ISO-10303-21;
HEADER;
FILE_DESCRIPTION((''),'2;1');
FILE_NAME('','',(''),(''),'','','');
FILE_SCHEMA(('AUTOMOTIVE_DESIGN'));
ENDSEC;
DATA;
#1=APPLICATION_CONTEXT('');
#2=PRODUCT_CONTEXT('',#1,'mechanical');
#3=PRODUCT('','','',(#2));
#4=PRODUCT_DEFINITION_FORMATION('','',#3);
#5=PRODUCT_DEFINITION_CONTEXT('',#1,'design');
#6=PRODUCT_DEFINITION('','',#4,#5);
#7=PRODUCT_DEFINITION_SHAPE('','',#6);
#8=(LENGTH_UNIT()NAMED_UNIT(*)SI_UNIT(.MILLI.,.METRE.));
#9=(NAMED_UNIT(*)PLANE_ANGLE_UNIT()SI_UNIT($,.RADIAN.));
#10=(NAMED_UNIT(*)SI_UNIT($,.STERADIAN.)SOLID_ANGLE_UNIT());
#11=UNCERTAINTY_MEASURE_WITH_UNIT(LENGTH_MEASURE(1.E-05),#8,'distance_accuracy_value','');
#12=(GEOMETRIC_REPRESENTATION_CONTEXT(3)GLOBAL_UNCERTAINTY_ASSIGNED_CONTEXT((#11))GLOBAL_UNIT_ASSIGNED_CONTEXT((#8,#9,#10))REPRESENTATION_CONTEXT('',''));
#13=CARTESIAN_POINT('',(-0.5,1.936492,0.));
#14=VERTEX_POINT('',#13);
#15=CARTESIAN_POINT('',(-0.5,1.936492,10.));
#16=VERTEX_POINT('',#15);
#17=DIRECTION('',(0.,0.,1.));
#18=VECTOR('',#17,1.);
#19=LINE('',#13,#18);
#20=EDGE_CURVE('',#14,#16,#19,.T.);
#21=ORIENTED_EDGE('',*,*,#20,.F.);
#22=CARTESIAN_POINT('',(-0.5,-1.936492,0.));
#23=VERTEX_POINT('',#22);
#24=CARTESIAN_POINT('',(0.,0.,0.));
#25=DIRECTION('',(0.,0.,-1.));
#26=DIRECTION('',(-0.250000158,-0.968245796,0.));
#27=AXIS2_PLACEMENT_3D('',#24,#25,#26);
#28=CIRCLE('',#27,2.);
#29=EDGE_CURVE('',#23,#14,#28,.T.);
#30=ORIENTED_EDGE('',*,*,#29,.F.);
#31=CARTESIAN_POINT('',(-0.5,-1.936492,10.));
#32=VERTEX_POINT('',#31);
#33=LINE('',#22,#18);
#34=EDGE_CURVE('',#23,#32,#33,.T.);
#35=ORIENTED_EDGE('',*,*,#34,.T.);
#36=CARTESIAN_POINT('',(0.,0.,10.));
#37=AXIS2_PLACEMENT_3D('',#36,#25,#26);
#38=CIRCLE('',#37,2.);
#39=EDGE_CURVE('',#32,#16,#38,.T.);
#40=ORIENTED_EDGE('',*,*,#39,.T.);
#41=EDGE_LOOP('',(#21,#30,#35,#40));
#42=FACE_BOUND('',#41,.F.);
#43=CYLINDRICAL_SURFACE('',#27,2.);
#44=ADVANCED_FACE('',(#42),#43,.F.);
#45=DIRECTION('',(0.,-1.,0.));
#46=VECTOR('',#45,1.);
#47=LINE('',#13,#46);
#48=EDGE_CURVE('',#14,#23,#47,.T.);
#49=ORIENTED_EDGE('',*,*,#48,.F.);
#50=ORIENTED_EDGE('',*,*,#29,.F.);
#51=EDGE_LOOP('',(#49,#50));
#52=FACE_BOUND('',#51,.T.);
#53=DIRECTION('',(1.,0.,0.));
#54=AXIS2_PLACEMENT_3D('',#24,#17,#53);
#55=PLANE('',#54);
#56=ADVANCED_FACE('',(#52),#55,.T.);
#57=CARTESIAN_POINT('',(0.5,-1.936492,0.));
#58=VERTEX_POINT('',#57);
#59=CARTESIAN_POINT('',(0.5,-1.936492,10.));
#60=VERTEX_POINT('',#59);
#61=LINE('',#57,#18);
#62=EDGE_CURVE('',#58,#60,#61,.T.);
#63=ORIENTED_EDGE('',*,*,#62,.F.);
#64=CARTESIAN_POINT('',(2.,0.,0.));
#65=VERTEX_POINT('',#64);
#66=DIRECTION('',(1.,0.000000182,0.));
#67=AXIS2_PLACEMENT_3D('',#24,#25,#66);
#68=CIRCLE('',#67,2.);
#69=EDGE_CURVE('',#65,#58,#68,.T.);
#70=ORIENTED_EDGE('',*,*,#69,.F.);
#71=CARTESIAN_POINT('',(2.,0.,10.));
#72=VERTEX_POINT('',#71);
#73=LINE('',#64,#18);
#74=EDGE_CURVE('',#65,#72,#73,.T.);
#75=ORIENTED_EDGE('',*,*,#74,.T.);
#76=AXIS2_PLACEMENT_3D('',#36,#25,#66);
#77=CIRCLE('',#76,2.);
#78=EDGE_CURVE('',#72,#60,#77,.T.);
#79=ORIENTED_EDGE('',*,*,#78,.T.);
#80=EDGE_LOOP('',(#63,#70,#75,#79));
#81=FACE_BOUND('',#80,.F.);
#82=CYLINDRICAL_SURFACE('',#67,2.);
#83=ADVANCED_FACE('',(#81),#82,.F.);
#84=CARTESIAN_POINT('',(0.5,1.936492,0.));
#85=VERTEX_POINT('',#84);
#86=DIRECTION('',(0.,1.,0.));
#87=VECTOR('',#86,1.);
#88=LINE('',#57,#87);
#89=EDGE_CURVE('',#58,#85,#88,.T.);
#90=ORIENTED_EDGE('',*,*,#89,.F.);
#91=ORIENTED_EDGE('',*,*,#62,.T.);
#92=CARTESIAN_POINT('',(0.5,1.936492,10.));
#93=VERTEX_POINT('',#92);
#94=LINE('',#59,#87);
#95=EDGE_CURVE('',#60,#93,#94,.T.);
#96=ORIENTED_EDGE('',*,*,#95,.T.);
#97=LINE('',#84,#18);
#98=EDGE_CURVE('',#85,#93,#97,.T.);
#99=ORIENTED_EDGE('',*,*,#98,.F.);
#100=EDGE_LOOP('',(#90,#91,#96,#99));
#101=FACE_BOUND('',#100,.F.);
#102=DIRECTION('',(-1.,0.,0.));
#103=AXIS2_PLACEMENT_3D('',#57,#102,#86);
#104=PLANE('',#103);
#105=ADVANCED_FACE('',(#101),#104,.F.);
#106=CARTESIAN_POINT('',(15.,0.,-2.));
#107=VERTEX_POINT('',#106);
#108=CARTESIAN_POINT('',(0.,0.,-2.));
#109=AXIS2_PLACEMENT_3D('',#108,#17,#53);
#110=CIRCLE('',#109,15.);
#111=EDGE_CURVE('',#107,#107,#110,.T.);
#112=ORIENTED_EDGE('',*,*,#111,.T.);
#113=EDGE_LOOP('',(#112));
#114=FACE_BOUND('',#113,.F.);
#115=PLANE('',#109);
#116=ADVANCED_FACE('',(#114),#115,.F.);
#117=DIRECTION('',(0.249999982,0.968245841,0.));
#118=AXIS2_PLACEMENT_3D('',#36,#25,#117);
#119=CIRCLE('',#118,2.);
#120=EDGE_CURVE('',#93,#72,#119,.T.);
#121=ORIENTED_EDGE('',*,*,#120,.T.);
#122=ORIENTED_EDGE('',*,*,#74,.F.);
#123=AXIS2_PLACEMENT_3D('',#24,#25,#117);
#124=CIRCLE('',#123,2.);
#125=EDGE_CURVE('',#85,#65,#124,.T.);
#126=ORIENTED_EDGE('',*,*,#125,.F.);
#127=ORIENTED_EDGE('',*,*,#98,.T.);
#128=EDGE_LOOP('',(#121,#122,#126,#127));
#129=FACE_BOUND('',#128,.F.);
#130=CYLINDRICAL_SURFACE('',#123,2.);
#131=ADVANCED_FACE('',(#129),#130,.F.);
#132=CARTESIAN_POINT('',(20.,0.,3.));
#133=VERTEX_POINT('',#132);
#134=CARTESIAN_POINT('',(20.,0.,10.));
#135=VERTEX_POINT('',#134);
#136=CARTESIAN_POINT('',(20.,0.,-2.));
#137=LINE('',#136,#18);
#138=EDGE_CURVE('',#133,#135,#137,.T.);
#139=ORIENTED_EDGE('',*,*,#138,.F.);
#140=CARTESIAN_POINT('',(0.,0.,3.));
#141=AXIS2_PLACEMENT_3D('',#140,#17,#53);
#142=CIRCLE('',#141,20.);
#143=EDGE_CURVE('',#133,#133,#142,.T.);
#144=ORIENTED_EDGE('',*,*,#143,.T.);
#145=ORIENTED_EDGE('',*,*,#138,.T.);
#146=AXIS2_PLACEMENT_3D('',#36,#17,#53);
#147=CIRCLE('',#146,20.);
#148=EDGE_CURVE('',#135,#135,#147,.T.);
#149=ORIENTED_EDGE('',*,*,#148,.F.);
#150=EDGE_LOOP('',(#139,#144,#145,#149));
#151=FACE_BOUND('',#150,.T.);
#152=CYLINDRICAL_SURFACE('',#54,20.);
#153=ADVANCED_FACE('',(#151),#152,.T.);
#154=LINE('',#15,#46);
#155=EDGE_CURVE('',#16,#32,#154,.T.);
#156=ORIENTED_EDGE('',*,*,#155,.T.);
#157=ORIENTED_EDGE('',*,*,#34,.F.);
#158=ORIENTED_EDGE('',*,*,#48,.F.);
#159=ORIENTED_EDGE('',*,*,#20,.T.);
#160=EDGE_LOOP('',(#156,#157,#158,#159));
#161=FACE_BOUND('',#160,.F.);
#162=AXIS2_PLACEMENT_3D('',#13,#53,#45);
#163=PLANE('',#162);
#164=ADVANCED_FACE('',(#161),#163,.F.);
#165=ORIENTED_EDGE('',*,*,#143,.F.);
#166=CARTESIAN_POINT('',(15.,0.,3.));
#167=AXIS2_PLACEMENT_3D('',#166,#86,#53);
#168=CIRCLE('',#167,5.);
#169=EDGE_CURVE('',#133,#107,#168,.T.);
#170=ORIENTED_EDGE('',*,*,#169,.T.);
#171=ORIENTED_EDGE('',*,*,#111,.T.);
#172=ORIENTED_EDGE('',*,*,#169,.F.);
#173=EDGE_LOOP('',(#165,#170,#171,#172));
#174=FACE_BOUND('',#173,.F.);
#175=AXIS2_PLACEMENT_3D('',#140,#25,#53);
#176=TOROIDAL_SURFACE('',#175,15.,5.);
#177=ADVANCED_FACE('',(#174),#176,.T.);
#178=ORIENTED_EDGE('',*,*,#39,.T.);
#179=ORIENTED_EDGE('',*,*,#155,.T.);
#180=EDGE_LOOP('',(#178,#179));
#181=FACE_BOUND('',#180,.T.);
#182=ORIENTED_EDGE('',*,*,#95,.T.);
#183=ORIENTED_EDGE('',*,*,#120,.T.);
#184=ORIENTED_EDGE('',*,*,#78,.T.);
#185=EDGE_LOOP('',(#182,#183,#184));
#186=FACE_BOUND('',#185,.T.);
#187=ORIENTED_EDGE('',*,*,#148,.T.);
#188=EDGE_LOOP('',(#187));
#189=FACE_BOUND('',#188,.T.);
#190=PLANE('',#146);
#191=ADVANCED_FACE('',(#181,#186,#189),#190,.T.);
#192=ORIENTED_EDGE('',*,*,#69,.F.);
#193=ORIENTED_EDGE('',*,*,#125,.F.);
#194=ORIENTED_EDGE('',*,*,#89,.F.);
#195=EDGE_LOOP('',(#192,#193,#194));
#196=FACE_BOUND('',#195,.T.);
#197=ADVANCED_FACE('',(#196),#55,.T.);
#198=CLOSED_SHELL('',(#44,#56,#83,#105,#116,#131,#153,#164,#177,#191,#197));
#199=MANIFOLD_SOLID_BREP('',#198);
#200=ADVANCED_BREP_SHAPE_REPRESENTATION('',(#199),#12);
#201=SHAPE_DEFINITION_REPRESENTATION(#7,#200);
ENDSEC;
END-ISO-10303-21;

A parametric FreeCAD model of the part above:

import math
import FreeCAD as App
import Part
import Sketcher
Q = App.Units.Quantity


def edges_at(feature, points):
    """Names of the edges that pass closest to the given points."""
    edges = feature.Shape.Edges
    near = lambda p: min(range(len(edges)), key=lambda i: edges[i].distToShape(Part.Vertex(*p))[0])
    return sorted({f"Edge{near(p) + 1}" for p in points})

doc = App.newDocument("Part")
body = doc.addObject("PartDesign::Body", "Body")

sketch1 = doc.addObject("Sketcher::SketchObject", "Sketch")
body.addObject(sketch1)
sketch1.AttachmentSupport = (doc.XY_Plane, [""])
sketch1.MapMode = "FlatFace"
sketch1.addGeometry(Part.Circle(App.Vector(0, 0, 0), App.Vector(0, 0, 1), 20), False)
sketch1.addGeometry(Part.ArcOfCircle(Part.Circle(App.Vector(0, 0, 0), App.Vector(0, 0, 1), 2), math.radians(104), math.radians(256)), False)
sketch1.addGeometry(Part.LineSegment(App.Vector(-0.5, 1.9, 0), App.Vector(-0.5, -1.9, 0)), False)
sketch1.addGeometry(Part.ArcOfCircle(Part.Circle(App.Vector(0, 0, 0), App.Vector(0, 0, 1), 2), math.radians(-76), math.radians(0)), False)
sketch1.addGeometry(Part.LineSegment(App.Vector(0.5, -1.9, 0), App.Vector(0.5, 1.9, 0)), False)
sketch1.addGeometry(Part.ArcOfCircle(Part.Circle(App.Vector(0, 0, 0), App.Vector(0, 0, 1), 2), math.radians(0), math.radians(76)), False)
sketch1.addConstraint(Sketcher.Constraint("Coincident", 1, 1, 2, 1))
sketch1.addConstraint(Sketcher.Constraint("Coincident", 2, 2, 1, 2))
sketch1.addConstraint(Sketcher.Constraint("Coincident", 3, 1, 4, 1))
sketch1.addConstraint(Sketcher.Constraint("Coincident", 4, 2, 5, 2))
sketch1.addConstraint(Sketcher.Constraint("Tangent", 5, 1, 3, 2))
sketch1.addConstraint(Sketcher.Constraint("Vertical", 2))
sketch1.addConstraint(Sketcher.Constraint("Vertical", 4))
sketch1.addConstraint(Sketcher.Constraint("Coincident", 0, 3, -1, 1))
sketch1.addConstraint(Sketcher.Constraint("Coincident", 1, 3, -1, 1))
sketch1.addConstraint(Sketcher.Constraint("Coincident", 3, 3, -1, 1))
sketch1.addConstraint(Sketcher.Constraint("Equal", 1, 3))
sketch1.addConstraint(Sketcher.Constraint("Equal", 3, 5))
sketch1.addConstraint(Sketcher.Constraint("PointOnObject", 5, 1, -1))
sketch1.addConstraint(Sketcher.Constraint("Horizontal", 2, 2, 3, 1))
sketch1.addConstraint(Sketcher.Constraint("Diameter", 0, Q("40 mm")))
sketch1.addConstraint(Sketcher.Constraint("Radius", 1, Q("2 mm")))
sketch1.addConstraint(Sketcher.Constraint("DistanceX", 2, 2, 3, 1, Q("1 mm")))
pad1 = doc.addObject("PartDesign::Pad", "Pad")
body.addObject(pad1)
pad1.Profile = sketch1
pad1.Length = 10

sketch2 = doc.addObject("Sketcher::SketchObject", "Sketch001")
body.addObject(sketch2)
sketch2.AttachmentSupport = (doc.XY_Plane, [""])
sketch2.MapMode = "FlatFace"
sketch2.addGeometry(Part.Circle(App.Vector(0, 0, 0), App.Vector(0, 0, 1), 20), False)
sketch2.addConstraint(Sketcher.Constraint("Coincident", 0, 3, -1, 1))
sketch2.addConstraint(Sketcher.Constraint("Diameter", 0, Q("40 mm")))
pad2 = doc.addObject("PartDesign::Pad", "Pad001")
body.addObject(pad2)
pad2.Profile = sketch2
pad2.Length = 2
pad2.Reversed = True
doc.recompute()

fillet = doc.addObject("PartDesign::Fillet", "Fillet")
body.addObject(fillet)
fillet.Base = (pad2, edges_at(pad2, [(-20, 0, -2)]))
fillet.Radius = 5

doc.recompute()
